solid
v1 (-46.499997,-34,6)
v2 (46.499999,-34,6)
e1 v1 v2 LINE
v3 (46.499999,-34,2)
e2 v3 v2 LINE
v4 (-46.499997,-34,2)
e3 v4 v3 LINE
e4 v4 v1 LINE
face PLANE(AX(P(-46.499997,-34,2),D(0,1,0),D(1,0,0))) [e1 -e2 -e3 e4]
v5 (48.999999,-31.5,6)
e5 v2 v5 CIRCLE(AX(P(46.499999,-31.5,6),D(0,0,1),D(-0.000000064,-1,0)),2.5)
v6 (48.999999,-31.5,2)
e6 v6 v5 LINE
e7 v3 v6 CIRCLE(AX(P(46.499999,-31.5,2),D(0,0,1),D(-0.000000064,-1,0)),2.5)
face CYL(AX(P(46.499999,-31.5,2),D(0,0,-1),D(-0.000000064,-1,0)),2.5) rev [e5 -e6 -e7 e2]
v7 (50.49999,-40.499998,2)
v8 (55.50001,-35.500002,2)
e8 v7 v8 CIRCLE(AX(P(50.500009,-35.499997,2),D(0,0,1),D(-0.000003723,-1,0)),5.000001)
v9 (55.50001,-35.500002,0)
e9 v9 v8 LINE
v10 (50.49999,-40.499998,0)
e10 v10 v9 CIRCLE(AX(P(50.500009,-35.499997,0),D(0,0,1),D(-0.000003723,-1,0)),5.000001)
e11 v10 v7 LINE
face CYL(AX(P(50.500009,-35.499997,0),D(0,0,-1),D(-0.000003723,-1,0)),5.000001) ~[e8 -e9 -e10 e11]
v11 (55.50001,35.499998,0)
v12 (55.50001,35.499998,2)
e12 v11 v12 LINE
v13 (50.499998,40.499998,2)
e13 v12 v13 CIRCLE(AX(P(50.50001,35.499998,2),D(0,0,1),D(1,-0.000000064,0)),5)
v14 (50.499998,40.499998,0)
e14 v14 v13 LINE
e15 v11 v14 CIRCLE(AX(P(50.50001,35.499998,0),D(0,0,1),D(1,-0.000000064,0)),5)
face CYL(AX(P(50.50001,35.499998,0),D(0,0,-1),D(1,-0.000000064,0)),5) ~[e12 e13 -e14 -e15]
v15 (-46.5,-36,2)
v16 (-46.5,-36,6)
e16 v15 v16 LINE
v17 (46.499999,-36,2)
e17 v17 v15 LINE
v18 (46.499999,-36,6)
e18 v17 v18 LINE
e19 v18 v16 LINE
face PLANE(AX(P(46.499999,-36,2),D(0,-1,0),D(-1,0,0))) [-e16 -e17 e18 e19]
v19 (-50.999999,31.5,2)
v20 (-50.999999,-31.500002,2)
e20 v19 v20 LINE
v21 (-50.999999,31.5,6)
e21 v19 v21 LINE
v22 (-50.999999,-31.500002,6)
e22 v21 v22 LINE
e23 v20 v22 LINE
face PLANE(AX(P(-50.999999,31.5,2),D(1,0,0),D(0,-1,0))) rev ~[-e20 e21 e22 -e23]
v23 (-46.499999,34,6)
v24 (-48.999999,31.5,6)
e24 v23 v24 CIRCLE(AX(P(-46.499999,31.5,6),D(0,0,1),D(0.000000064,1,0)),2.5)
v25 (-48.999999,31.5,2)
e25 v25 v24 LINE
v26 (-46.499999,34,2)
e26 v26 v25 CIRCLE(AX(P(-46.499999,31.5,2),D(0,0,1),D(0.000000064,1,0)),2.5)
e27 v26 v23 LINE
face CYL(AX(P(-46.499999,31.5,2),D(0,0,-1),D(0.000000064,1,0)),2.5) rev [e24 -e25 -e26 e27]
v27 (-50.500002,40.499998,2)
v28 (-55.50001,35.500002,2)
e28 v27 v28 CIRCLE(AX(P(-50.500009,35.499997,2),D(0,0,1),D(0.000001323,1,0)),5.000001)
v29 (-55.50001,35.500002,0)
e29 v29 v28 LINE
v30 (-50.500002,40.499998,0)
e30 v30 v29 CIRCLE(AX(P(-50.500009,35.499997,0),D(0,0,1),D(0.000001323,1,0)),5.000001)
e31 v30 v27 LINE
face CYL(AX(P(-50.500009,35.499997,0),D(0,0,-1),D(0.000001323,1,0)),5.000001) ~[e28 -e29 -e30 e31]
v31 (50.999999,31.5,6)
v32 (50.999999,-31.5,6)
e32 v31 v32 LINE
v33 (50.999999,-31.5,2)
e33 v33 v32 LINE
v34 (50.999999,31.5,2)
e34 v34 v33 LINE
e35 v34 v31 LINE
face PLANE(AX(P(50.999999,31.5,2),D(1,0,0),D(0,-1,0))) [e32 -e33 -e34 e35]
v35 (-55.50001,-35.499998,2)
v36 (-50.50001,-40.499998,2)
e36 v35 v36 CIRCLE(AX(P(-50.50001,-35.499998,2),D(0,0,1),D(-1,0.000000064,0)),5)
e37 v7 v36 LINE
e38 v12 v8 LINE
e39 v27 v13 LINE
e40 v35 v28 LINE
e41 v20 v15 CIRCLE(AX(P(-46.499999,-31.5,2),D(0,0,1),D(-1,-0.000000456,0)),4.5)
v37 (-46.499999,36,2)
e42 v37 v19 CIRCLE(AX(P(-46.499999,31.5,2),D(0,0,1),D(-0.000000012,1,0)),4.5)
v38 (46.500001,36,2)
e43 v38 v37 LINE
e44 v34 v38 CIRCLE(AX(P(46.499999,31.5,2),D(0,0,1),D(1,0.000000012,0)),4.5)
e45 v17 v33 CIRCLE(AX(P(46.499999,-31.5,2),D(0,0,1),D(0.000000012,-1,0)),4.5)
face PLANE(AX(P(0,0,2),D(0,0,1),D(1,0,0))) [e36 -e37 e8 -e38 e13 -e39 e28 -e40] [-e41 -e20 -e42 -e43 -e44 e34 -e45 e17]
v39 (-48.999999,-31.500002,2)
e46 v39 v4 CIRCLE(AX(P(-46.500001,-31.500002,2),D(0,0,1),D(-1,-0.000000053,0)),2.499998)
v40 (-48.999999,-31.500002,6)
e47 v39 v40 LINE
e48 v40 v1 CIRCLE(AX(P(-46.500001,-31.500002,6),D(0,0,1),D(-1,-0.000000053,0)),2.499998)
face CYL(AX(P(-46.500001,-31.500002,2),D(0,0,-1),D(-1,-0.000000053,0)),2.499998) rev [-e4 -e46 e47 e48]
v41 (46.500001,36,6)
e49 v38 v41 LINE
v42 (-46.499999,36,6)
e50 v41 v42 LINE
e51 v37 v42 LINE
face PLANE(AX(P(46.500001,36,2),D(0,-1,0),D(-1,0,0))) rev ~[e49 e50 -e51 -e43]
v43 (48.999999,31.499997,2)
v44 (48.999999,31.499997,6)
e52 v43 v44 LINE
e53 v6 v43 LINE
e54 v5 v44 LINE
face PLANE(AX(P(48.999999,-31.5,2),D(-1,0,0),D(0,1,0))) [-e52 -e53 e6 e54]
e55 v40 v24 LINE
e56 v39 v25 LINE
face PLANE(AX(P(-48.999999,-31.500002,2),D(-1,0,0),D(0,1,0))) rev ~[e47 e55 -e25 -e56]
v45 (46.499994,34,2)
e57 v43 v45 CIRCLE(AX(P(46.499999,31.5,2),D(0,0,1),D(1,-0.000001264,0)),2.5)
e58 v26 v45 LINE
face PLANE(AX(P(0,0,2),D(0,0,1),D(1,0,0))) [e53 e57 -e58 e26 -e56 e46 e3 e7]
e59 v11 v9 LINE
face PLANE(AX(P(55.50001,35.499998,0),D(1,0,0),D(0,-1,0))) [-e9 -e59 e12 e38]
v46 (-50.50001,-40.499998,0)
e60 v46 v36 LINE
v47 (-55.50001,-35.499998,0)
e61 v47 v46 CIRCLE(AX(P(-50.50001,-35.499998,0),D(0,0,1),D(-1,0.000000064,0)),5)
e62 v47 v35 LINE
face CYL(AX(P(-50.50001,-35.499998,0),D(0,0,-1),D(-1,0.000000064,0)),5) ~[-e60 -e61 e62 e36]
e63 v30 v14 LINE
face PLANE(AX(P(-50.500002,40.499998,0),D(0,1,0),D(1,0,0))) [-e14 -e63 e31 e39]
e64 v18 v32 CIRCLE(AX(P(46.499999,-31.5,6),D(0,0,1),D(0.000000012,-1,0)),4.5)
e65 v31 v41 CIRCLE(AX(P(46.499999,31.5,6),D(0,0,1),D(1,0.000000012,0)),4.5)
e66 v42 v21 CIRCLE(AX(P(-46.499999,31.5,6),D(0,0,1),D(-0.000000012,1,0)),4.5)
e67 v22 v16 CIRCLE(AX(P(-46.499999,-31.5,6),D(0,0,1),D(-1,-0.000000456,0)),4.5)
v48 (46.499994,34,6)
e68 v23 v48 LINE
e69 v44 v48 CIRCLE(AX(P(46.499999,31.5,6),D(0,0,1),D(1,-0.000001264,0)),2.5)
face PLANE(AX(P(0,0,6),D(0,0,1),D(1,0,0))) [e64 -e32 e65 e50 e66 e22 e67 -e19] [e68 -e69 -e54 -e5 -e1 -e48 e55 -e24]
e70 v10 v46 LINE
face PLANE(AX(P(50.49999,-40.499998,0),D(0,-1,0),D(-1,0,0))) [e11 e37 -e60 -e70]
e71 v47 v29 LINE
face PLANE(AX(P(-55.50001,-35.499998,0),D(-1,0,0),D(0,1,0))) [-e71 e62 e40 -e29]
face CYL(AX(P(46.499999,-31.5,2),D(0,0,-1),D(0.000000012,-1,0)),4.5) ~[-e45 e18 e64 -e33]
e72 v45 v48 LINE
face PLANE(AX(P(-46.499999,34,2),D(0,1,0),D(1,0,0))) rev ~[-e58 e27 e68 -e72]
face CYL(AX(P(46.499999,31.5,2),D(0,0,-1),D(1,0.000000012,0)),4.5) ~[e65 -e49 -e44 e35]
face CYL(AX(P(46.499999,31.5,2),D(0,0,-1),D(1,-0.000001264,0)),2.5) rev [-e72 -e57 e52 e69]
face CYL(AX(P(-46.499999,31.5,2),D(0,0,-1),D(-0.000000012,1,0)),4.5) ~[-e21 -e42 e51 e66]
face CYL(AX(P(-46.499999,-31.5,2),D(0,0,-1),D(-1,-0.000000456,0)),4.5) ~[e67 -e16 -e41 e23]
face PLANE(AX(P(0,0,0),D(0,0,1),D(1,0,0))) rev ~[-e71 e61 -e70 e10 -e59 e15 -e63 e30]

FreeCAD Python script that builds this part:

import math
import FreeCAD as App
import Part
import Sketcher
from FreeCAD import Vector
Q = App.Units.Quantity

doc = App.newDocument("Part")
body = doc.addObject("PartDesign::Body", "Body")

sketch1 = body.newObject("Sketcher::SketchObject", "Sketch")
sketch1.AttachmentSupport = (doc.getObject("XY_Plane"), [""])
sketch1.MapMode = "FlatFace"
sketch1.addGeometry([
    Part.ArcOfCircle(Part.Circle(Vector(-50.5, 35.5, 0), Vector(0, 0, 1), 5), math.radians(90), math.radians(180)),
    Part.LineSegment(Vector(-55.5, 35.5, 0), Vector(-55.5, -35.5, 0)),
    Part.ArcOfCircle(Part.Circle(Vector(-50.5, -35.5, 0), Vector(0, 0, 1), 5), math.radians(180), math.radians(270)),
    Part.LineSegment(Vector(-50.5, -40.5, 0), Vector(50.5, -40.5, 0)),
    Part.ArcOfCircle(Part.Circle(Vector(50.5, -35.5, 0), Vector(0, 0, 1), 5), math.radians(-90), math.radians(0)),
    Part.LineSegment(Vector(55.5, -35.5, 0), Vector(55.5, 35.5, 0)),
    Part.ArcOfCircle(Part.Circle(Vector(50.5, 35.5, 0), Vector(0, 0, 1), 5), math.radians(0), math.radians(90)),
    Part.LineSegment(Vector(50.5, 40.5, 0), Vector(-50.5, 40.5, 0)),
], False)
sketch1.addConstraint([
    Sketcher.Constraint("Tangent", 0, 2, 1, 1),
    Sketcher.Constraint("Tangent", 1, 2, 2, 1),
    Sketcher.Constraint("Tangent", 2, 2, 3, 1),
    Sketcher.Constraint("Coincident", 3, 2, 4, 1),
    Sketcher.Constraint("Tangent", 4, 2, 5, 1),
    Sketcher.Constraint("Tangent", 5, 2, 6, 1),
    Sketcher.Constraint("Coincident", 6, 2, 7, 1),
    Sketcher.Constraint("Tangent", 7, 2, 0, 1),
    Sketcher.Constraint("Vertical", 1),
    Sketcher.Constraint("Horizontal", 3),
    Sketcher.Constraint("Vertical", 5),
    Sketcher.Constraint("Horizontal", 7),
    Sketcher.Constraint("Equal", 0, 2),
    Sketcher.Constraint("Equal", 2, 4),
    Sketcher.Constraint("Equal", 4, 6),
    Sketcher.Constraint("Symmetric", 0, 3, 4, 3, -1, 1),
    Sketcher.Constraint("Equal", 3, 7),
    Sketcher.Constraint("Radius", 0, Q("5.000001 mm")),
    Sketcher.Constraint("DistanceX", 3, 1, 3, 2, Q("101 mm")),
    Sketcher.Constraint("DistanceY", 1, 2, 1, 1, Q("71 mm")),
    Sketcher.Constraint("DistanceX", 0, 3, -1, 1, Q("50.500009 mm")),
])
pad1 = body.newObject("PartDesign::Pad", "Pad")
pad1.Profile = sketch1
pad1.Length = 2

sketch2 = body.newObject("Sketcher::SketchObject", "Sketch001")
sketch2.AttachmentSupport = (doc.getObject("XY_Plane"), [""])
sketch2.MapMode = "FlatFace"
sketch2.AttachmentOffset = App.Placement(Vector(0, 0, 2), App.Rotation())
sketch2.addGeometry([
    Part.ArcOfCircle(Part.Circle(Vector(46.5, 31.5, 0), Vector(0, 0, 1), 4.5), math.radians(0), math.radians(90)),
    Part.LineSegment(Vector(46.5, 36, 0), Vector(-46.5, 36, 0)),
    Part.ArcOfCircle(Part.Circle(Vector(-46.5, 31.5, 0), Vector(0, 0, 1), 4.5), math.radians(90), math.radians(180)),
    Part.LineSegment(Vector(-51, 31.5, 0), Vector(-51, -31.5, 0)),
    Part.ArcOfCircle(Part.Circle(Vector(-46.5, -31.5, 0), Vector(0, 0, 1), 4.5), math.radians(-180), math.radians(-90)),
    Part.LineSegment(Vector(-46.5, -36, 0), Vector(46.5, -36, 0)),
    Part.ArcOfCircle(Part.Circle(Vector(46.5, -31.5, 0), Vector(0, 0, 1), 4.5), math.radians(-90), math.radians(0)),
    Part.LineSegment(Vector(51, -31.5, 0), Vector(51, 31.5, 0)),
    Part.ArcOfCircle(Part.Circle(Vector(-46.5, 31.5, 0), Vector(0, 0, 1), 2.5), math.radians(90), math.radians(180)),
    Part.LineSegment(Vector(-46.5, 34, 0), Vector(46.5, 34, 0)),
    Part.ArcOfCircle(Part.Circle(Vector(46.5, 31.5, 0), Vector(0, 0, 1), 2.5), math.radians(0), math.radians(90)),
    Part.LineSegment(Vector(49, 31.5, 0), Vector(49, -31.5, 0)),
    Part.ArcOfCircle(Part.Circle(Vector(46.5, -31.5, 0), Vector(0, 0, 1), 2.5), math.radians(-90), math.radians(0)),
    Part.LineSegment(Vector(46.5, -34, 0), Vector(-46.5, -34, 0)),
    Part.ArcOfCircle(Part.Circle(Vector(-46.5, -31.5, 0), Vector(0, 0, 1), 2.5), math.radians(-180), math.radians(-90)),
    Part.LineSegment(Vector(-49, -31.5, 0), Vector(-49, 31.5, 0)),
], False)
sketch2.addConstraint([
    Sketcher.Constraint("Tangent", 0, 2, 1, 1),
    Sketcher.Constraint("Tangent", 1, 2, 2, 1),
    Sketcher.Constraint("Tangent", 2, 2, 3, 1),
    Sketcher.Constraint("Tangent", 3, 2, 4, 1),
    Sketcher.Constraint("Tangent", 4, 2, 5, 1),
    Sketcher.Constraint("Tangent", 5, 2, 6, 1),
    Sketcher.Constraint("Tangent", 6, 2, 7, 1),
    Sketcher.Constraint("Tangent", 7, 2, 0, 1),
    Sketcher.Constraint("Tangent", 8, 1, 9, 1),
    Sketcher.Constraint("Coincident", 9, 2, 10, 2),
    Sketcher.Constraint("Tangent", 10, 1, 11, 1),
    Sketcher.Constraint("Tangent", 11, 2, 12, 2),
    Sketcher.Constraint("Tangent", 12, 1, 13, 1),
    Sketcher.Constraint("Tangent", 13, 2, 14, 2),
    Sketcher.Constraint("Tangent", 14, 1, 15, 1),
    Sketcher.Constraint("Tangent", 15, 2, 8, 2),
    Sketcher.Constraint("Horizontal", 1),
    Sketcher.Constraint("Vertical", 3),
    Sketcher.Constraint("Horizontal", 5),
    Sketcher.Constraint("Vertical", 7),
    Sketcher.Constraint("Horizontal", 9),
    Sketcher.Constraint("Vertical", 11),
    Sketcher.Constraint("Horizontal", 13),
    Sketcher.Constraint("Vertical", 15),
    Sketcher.Constraint("Coincident", 8, 3, 2, 3),
    Sketcher.Constraint("Coincident", 10, 3, 0, 3),
    Sketcher.Constraint("Coincident", 12, 3, 6, 3),
    Sketcher.Constraint("Equal", 0, 2),
    Sketcher.Constraint("Equal", 2, 4),
    Sketcher.Constraint("Equal", 4, 6),
    Sketcher.Constraint("Equal", 12, 14),
    Sketcher.Constraint("Symmetric", 0, 3, 4, 3, -1, 1),
    Sketcher.Constraint("Radius", 0, Q("4.5 mm")),
    Sketcher.Constraint("Radius", 8, Q("2.5 mm")),
    Sketcher.Constraint("DistanceX", 1, 2, 1, 1, Q("93 mm")),
    Sketcher.Constraint("DistanceY", 3, 2, 3, 1, Q("63.000002 mm")),
    Sketcher.Constraint("DistanceX", 9, 1, 9, 2, Q("92.999993 mm")),
])
pad2 = body.newObject("PartDesign::Pad", "Pad001")
pad2.Profile = sketch2
pad2.Length = 4

doc.recompute()
